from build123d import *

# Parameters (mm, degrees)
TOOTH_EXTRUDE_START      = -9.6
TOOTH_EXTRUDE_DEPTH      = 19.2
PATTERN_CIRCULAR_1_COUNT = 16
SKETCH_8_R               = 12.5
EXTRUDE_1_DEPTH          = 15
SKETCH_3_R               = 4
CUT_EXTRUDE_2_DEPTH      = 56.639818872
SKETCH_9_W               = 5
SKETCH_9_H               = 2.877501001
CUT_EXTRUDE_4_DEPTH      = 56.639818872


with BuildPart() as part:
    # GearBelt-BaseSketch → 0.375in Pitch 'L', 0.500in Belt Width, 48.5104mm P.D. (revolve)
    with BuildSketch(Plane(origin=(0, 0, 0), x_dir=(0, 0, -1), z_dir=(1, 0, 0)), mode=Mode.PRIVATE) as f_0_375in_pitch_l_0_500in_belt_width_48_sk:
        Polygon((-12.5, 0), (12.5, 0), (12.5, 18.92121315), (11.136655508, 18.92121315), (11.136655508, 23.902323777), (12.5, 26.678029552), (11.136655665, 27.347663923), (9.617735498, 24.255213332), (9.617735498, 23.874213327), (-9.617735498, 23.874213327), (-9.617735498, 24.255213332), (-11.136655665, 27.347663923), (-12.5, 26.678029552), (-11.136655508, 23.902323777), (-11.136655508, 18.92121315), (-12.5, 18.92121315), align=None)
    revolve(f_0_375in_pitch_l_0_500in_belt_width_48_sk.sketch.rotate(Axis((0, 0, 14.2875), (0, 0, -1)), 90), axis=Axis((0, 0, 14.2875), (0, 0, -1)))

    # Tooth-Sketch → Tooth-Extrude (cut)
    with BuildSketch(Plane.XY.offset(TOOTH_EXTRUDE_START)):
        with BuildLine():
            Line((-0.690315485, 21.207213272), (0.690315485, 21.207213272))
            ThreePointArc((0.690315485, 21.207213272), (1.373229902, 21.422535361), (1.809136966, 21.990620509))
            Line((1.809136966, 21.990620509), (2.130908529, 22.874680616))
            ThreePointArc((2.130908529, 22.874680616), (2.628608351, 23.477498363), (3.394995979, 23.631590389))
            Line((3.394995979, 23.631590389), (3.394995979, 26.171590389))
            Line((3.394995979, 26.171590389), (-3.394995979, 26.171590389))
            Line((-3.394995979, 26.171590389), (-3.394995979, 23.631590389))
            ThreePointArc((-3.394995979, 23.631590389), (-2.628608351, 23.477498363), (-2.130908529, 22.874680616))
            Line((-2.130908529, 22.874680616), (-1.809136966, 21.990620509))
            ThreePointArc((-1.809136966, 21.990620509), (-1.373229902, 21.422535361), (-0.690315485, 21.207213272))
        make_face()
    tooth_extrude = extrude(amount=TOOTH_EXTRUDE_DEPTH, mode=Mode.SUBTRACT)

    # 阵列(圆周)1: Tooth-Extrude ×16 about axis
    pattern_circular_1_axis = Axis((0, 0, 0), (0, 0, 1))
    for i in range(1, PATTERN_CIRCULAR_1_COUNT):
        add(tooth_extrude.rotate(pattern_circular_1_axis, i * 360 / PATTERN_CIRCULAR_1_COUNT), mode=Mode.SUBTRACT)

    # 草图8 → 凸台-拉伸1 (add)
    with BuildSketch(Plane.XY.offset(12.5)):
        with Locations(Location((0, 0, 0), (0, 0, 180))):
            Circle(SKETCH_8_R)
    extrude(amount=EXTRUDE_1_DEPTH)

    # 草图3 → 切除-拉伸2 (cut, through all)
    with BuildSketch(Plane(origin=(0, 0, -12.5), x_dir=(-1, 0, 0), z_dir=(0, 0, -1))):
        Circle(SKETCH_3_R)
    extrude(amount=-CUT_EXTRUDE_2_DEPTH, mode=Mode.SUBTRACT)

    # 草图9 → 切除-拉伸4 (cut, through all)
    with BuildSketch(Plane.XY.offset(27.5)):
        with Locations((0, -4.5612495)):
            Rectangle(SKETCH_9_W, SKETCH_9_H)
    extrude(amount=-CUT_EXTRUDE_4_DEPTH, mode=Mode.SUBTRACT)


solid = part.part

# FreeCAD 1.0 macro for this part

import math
import FreeCAD as App
import Part
import Sketcher

V = App.Vector
Q = App.Units.Quantity

doc = App.newDocument("Part")
body = doc.addObject("PartDesign::Body", "Body")

sketch1 = body.newObject("Sketcher::SketchObject", "Sketch")
sketch1.AttachmentSupport = (doc.getObject("YZ_Plane"), [""])
sketch1.MapMode = "FlatFace"
sketch1.addGeometry([
    Part.LineSegment(V(0, 12.5, 0), V(0, -12.5, 0)),
    Part.LineSegment(V(0, -12.5, 0), V(18.92, -12.5, 0)),
    Part.LineSegment(V(18.92, -12.5, 0), V(18.92, -11.14, 0)),
    Part.LineSegment(V(18.92, -11.14, 0), V(23.9, -11.14, 0)),
    Part.LineSegment(V(23.9, -11.14, 0), V(26.68, -12.5, 0)),
    Part.LineSegment(V(26.68, -12.5, 0), V(27.35, -11.14, 0)),
    Part.LineSegment(V(27.35, -11.14, 0), V(24.26, -9.62, 0)),
    Part.LineSegment(V(24.26, -9.62, 0), V(23.87, -9.62, 0)),
    Part.LineSegment(V(23.87, -9.62, 0), V(23.87, 9.62, 0)),
    Part.LineSegment(V(23.87, 9.62, 0), V(24.26, 9.62, 0)),
    Part.LineSegment(V(24.26, 9.62, 0), V(27.35, 11.14, 0)),
    Part.LineSegment(V(27.35, 11.14, 0), V(26.68, 12.5, 0)),
    Part.LineSegment(V(26.68, 12.5, 0), V(23.9, 11.14, 0)),
    Part.LineSegment(V(23.9, 11.14, 0), V(18.92, 11.14, 0)),
    Part.LineSegment(V(18.92, 11.14, 0), V(18.92, 12.5, 0)),
    Part.LineSegment(V(18.92, 12.5, 0), V(0, 12.5, 0)),
], False)
sketch1.addConstraint([
    Sketcher.Constraint("Coincident", 0, 2, 1, 1),
    Sketcher.Constraint("Coincident", 1, 2, 2, 1),
    Sketcher.Constraint("Coincident", 2, 2, 3, 1),
    Sketcher.Constraint("Coincident", 3, 2, 4, 1),
    Sketcher.Constraint("Coincident", 4, 2, 5, 1),
    Sketcher.Constraint("Coincident", 5, 2, 6, 1),
    Sketcher.Constraint("Coincident", 6, 2, 7, 1),
    Sketcher.Constraint("Coincident", 7, 2, 8, 1),
    Sketcher.Constraint("Coincident", 8, 2, 9, 1),
    Sketcher.Constraint("Coincident", 9, 2, 10, 1),
    Sketcher.Constraint("Coincident", 10, 2, 11, 1),
    Sketcher.Constraint("Coincident", 11, 2, 12, 1),
    Sketcher.Constraint("Coincident", 12, 2, 13, 1),
    Sketcher.Constraint("Coincident", 13, 2, 14, 1),
    Sketcher.Constraint("Coincident", 14, 2, 15, 1),
    Sketcher.Constraint("Coincident", 15, 2, 0, 1),
    Sketcher.Constraint("Vertical", 0),
    Sketcher.Constraint("Horizontal", 1),
    Sketcher.Constraint("Vertical", 2),
    Sketcher.Constraint("Horizontal", 3),
    Sketcher.Constraint("Horizontal", 7),
    Sketcher.Constraint("Vertical", 8),
    Sketcher.Constraint("Horizontal", 9),
    Sketcher.Constraint("Horizontal", 13),
    Sketcher.Constraint("Vertical", 14),
    Sketcher.Constraint("Horizontal", 15),
    Sketcher.Constraint("Symmetric", 0, 2, 15, 2, -1, 1),
    Sketcher.Constraint("Symmetric", 6, 2, 9, 2, -1),
    Sketcher.Constraint("Symmetric", 5, 2, 10, 2, -1),
    Sketcher.Constraint("Symmetric", 4, 2, 11, 2, -1),
    Sketcher.Constraint("Symmetric", 3, 2, 12, 2, -1),
    Sketcher.Constraint("Perpendicular", 4, 5),
    Sketcher.Constraint("Perpendicular", 5, 6),
    Sketcher.Constraint("Horizontal", 1, 2, 4, 2),
    Sketcher.Constraint("Horizontal", 3, 2, 5, 2),
    Sketcher.Constraint("Vertical", 2, 2, 13, 2),
    Sketcher.Constraint("DistanceY", 0, 2, 0, 1, Q("25 mm")),
    Sketcher.Constraint("DistanceX", 7, 2, 7, 1, Q("0.381 mm")),
    Sketcher.Constraint("DistanceX", 2, 2, 6, 2, Q("5.334 mm")),
    Sketcher.Constraint("DistanceX", 3, 1, 3, 2, Q("4.981111 mm")),
    Sketcher.Constraint("DistanceY", 8, 1, 8, 2, Q("19.235471 mm")),
    Sketcher.Constraint("Distance", 4, Q("3.092451 mm")),
    Sketcher.Constraint("DistanceX", 1, 1, 1, 2, Q("18.921213 mm")),
])
revolution = body.newObject("PartDesign::Revolution", "Revolution")
revolution.Profile = sketch1
revolution.ReferenceAxis = (sketch1, ["V_Axis"])
revolution.Angle = 360

sketch2 = body.newObject("Sketcher::SketchObject", "Sketch001")
sketch2.AttachmentSupport = (doc.getObject("XY_Plane"), [""])
sketch2.MapMode = "FlatFace"
sketch2.AttachmentOffset = App.Placement(V(0, 0, -9.6), App.Rotation())
sketch2.addGeometry([
    Part.LineSegment(V(-0.7, 21.2, 0), V(0.7, 21.2, 0)),
    Part.ArcOfCircle(Part.Circle(V(0.7, 22.4, 0), V(0, 0, 1), 1.2), math.radians(-90), math.radians(-20)),
    Part.LineSegment(V(1.8, 22, 0), V(2.1, 22.9, 0)),
    Part.ArcOfCircle(Part.Circle(V(3.2, 22.5, 0), V(0, 0, 1), 1.2), math.radians(82), math.radians(160)),
    Part.LineSegment(V(3.4, 23.6, 0), V(3.4, 26.2, 0)),
    Part.LineSegment(V(3.4, 26.2, 0), V(-3.4, 26.2, 0)),
    Part.LineSegment(V(-3.4, 26.2, 0), V(-3.4, 23.6, 0)),
    Part.ArcOfCircle(Part.Circle(V(-3.2, 22.5, 0), V(0, 0, 1), 1.2), math.radians(20), math.radians(98)),
    Part.LineSegment(V(-2.1, 22.9, 0), V(-1.8, 22, 0)),
    Part.ArcOfCircle(Part.Circle(V(-0.7, 22.4, 0), V(0, 0, 1), 1.2), math.radians(-160), math.radians(-90)),
], False)
sketch2.addConstraint([
    Sketcher.Constraint("Tangent", 0, 2, 1, 1),
    Sketcher.Constraint("Tangent", 1, 2, 2, 1),
    Sketcher.Constraint("Tangent", 2, 2, 3, 2),
    Sketcher.Constraint("Coincident", 3, 1, 4, 1),
    Sketcher.Constraint("Coincident", 4, 2, 5, 1),
    Sketcher.Constraint("Coincident", 5, 2, 6, 1),
    Sketcher.Constraint("Coincident", 6, 2, 7, 2),
    Sketcher.Constraint("Tangent", 7, 1, 8, 1),
    Sketcher.Constraint("Tangent", 8, 2, 9, 1),
    Sketcher.Constraint("Tangent", 9, 2, 0, 1),
    Sketcher.Constraint("Horizontal", 0),
    Sketcher.Constraint("Vertical", 4),
    Sketcher.Constraint("Horizontal", 5),
    Sketcher.Constraint("Vertical", 6),
    Sketcher.Constraint("Equal", 3, 7),
    Sketcher.Constraint("Equal", 1, 9),
    Sketcher.Constraint("Symmetric", 3, 3, 7, 3, -2),
    Sketcher.Constraint("Horizontal", 3, 1, 6, 2),
    Sketcher.Constraint("Horizontal", 2, 2, 7, 1),
    Sketcher.Constraint("Angle", 2, Q("70 deg")),
    Sketcher.Constraint("DistanceY", 4, 1, 4, 2, Q("2.54 mm")),
    Sketcher.Constraint("Radius", 3, Q("1.1684 mm")),
    Sketcher.Constraint("Radius", 1, Q("1.190625 mm")),
    Sketcher.Constraint("DistanceX", 0, 1, 0, 2, Q("1.380631 mm")),
    Sketcher.Constraint("DistanceX", 5, 2, 5, 1, Q("6.789992 mm")),
    Sketcher.Constraint("DistanceY", -1, 1, 1, 3, Q("22.397838 mm")),
    Sketcher.Constraint("DistanceX", -1, 1, 2, 2, Q("2.130909 mm")),
])
pocket1 = body.newObject("PartDesign::Pocket", "Pocket")
pocket1.Profile = sketch2
pocket1.Length = 19.2
pocket1.Reversed = True
doc.recompute()

polarpattern = body.newObject("PartDesign::PolarPattern", "PolarPattern")
polarpattern.Originals = [pocket1]
polarpattern.Axis = (doc.getObject("Z_Axis"), [""])
polarpattern.Angle = 360
polarpattern.Occurrences = 16
body.Tip = polarpattern

sketch3 = body.newObject("Sketcher::SketchObject", "Sketch002")
sketch3.AttachmentSupport = (doc.getObject("XY_Plane"), [""])
sketch3.MapMode = "FlatFace"
sketch3.AttachmentOffset = App.Placement(V(0, 0, 12.5), App.Rotation())
sketch3.addGeometry(Part.Circle(V(0, 0, 0), V(0, 0, 1), 12), False)
sketch3.addConstraint([
    Sketcher.Constraint("Coincident", 0, 3, -1, 1),
    Sketcher.Constraint("Diameter", 0, Q("25 mm")),
])
pad1 = body.newObject("PartDesign::Pad", "Pad")
pad1.Profile = sketch3
pad1.Length = 15

sketch4 = body.newObject("Sketcher::SketchObject", "Sketch003")
sketch4.AttachmentSupport = (doc.getObject("XY_Plane"), [""])
sketch4.MapMode = "FlatFace"
sketch4.AttachmentOffset = App.Placement(V(0, 0, -12.5), App.Rotation())
sketch4.addGeometry(Part.Circle(V(0, 0, 0), V(0, 0, 1), 4), False)
sketch4.addConstraint([
    Sketcher.Constraint("Coincident", 0, 3, -1, 1),
    Sketcher.Constraint("Diameter", 0, Q("8 mm")),
])
pocket2 = body.newObject("PartDesign::Pocket", "Pocket001")
pocket2.Profile = sketch4
pocket2.Type = "ThroughAll"
pocket2.Reversed = True

sketch5 = body.newObject("Sketcher::SketchObject", "Sketch004")
sketch5.AttachmentSupport = (doc.getObject("XY_Plane"), [""])
sketch5.MapMode = "FlatFace"
sketch5.AttachmentOffset = App.Placement(V(0, 0, 27.5), App.Rotation())
sketch5.addGeometry([
    Part.LineSegment(V(-2.5, -3.1, 0), V(-2.5, -6, 0)),
    Part.LineSegment(V(-2.5, -6, 0), V(2.5, -6, 0)),
    Part.LineSegment(V(2.5, -6, 0), V(2.5, -3.1, 0)),
    Part.LineSegment(V(2.5, -3.1, 0), V(-2.5, -3.1, 0)),
], False)
sketch5.addConstraint([
    Sketcher.Constraint("Coincident", 0, 2, 1, 1),
    Sketcher.Constraint("Coincident", 1, 2, 2, 1),
    Sketcher.Constraint("Coincident", 2, 2, 3, 1),
    Sketcher.Constraint("Coincident", 3, 2, 0, 1),
    Sketcher.Constraint("Vertical", 0),
    Sketcher.Constraint("Horizontal", 1),
    Sketcher.Constraint("Vertical", 2),
    Sketcher.Constraint("Horizontal", 3),
    Sketcher.Constraint("DistanceX", 1, 1, 1, 2, Q("5 mm")),
    Sketcher.Constraint("DistanceY", 0, 2, -1, 1, Q("6 mm")),
    Sketcher.Constraint("DistanceX", 0, 2, -1, 1, Q("2.5 mm")),
    Sketcher.Constraint("DistanceY", 0, 2, 0, 1, Q("2.877501 mm")),
])
pocket3 = body.newObject("PartDesign::Pocket", "Pocket002")
pocket3.Profile = sketch5
pocket3.Type = "ThroughAll"

doc.recompute()
